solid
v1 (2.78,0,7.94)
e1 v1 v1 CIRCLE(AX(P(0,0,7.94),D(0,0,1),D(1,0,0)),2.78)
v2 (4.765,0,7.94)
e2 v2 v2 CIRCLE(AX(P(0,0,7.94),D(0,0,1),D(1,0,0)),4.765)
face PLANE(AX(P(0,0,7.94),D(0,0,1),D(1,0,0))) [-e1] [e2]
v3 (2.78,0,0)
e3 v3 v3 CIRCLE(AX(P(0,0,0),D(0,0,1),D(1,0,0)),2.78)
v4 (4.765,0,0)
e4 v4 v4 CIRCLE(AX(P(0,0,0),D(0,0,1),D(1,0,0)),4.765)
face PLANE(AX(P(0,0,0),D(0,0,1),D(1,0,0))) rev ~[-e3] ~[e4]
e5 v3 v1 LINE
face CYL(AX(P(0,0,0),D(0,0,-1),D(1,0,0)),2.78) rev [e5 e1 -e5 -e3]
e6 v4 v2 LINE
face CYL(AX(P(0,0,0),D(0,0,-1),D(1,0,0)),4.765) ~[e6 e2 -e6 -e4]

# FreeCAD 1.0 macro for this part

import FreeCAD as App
import Part
import Sketcher
Q = App.Units.Quantity

doc = App.newDocument("Part")
body = doc.addObject("PartDesign::Body", "Body")

# Sketch on XY plane
sketch1 = body.newObject("Sketcher::SketchObject", "Sketch")
sketch1.AttachmentSupport = (doc.getObject("XY_Plane"), [""])
sketch1.MapMode = "FlatFace"
sketch1.addGeometry(Part.Circle(App.Vector(0, 0, 0), App.Vector(0, 0, 1), 4.8), False)
sketch1.addGeometry(Part.Circle(App.Vector(0, 0, 0), App.Vector(0, 0, 1), 2.8), False)
sketch1.addConstraint(Sketcher.Constraint("Coincident", 0, 3, -1, 1))
sketch1.addConstraint(Sketcher.Constraint("Coincident", 1, 3, -1, 1))
sketch1.addConstraint(Sketcher.Constraint("Diameter", 0, Q("9.53 mm")))
sketch1.addConstraint(Sketcher.Constraint("Diameter", 1, Q("5.56 mm")))
pad1 = body.newObject("PartDesign::Pad", "Pad")
pad1.Profile = sketch1
pad1.Length = 7.94

doc.recompute()
